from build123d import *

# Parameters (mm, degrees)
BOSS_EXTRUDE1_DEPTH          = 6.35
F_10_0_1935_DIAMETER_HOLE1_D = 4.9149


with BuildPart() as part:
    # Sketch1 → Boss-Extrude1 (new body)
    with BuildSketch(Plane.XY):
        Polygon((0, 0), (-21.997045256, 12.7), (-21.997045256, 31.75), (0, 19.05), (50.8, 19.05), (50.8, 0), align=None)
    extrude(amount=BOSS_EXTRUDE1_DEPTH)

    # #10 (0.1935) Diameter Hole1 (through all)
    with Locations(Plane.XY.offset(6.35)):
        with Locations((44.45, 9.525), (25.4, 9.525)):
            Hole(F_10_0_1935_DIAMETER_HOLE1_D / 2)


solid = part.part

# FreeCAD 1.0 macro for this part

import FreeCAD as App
import Part
import Sketcher
from FreeCAD import Vector
Q = App.Units.Quantity


def add_polygon(sketch, points):
    """Adds a closed chain of lines whose ends are joined by coincident constraints."""
    first, n = sketch.GeometryCount, len(points)
    for a, b in zip(points, points[1:] + points[:1]):
        sketch.addGeometry(Part.LineSegment(App.Vector(*a, 0), App.Vector(*b, 0)), False)
    for i in range(n):
        sketch.addConstraint(Sketcher.Constraint("Coincident", first + i, 2, first + (i + 1) % n, 1))

doc = App.newDocument("Part")
params = doc.addObject("Spreadsheet::Sheet", "Params")
for row, (alias, value) in enumerate([
    ("sketch1_width", "2 in"),
    ("sketch1_length", "1 in"),
    ("sketch1_height", "0.75 in"),
    ("pad1_length", "0.25 in"),
    ("hole_diameter", "0.1935 in"),
], start=1):
    params.set(f"A{row}", alias)
    params.set(f"B{row}", "=" + value)
    params.setAlias(f"B{row}", alias)

body = doc.addObject("PartDesign::Body", "Body")

# Sketch on XY plane
sketch1 = doc.addObject("Sketcher::SketchObject", "Sketch")
body.addObject(sketch1)
sketch1.AttachmentSupport = (doc.XY_Plane, [""])
sketch1.MapMode = "FlatFace"
add_polygon(sketch1, [(-22, 13), (0, 0), (51, 0), (51, 19), (0, 19), (-22, 32)])  # lines 0-5
sketch1.addConstraint(Sketcher.Constraint("Horizontal", 1))
sketch1.addConstraint(Sketcher.Constraint("Vertical", 2))
sketch1.addConstraint(Sketcher.Constraint("Horizontal", 3))
sketch1.addConstraint(Sketcher.Constraint("Vertical", 5))
sketch1.addConstraint(Sketcher.Constraint("Coincident", 0, 2, -1, 1))
sketch1.addConstraint(Sketcher.Constraint("PointOnObject", 3, 2, -2))
sketch1.addConstraint(Sketcher.Constraint("Parallel", 0, 4))
sketch1.addConstraint(Sketcher.Constraint("DistanceX", 1, 1, 1, 2, Q("2 in")))
sketch1.addConstraint(Sketcher.Constraint("Distance", 0, Q("1 in")))
sketch1.addConstraint(Sketcher.Constraint("Angle", 0, Q("-30 deg")))
sketch1.addConstraint(Sketcher.Constraint("DistanceY", 2, 1, 2, 2, Q("0.75 in")))
sketch1.setExpression("Constraints[13]", "Params.sketch1_width")
sketch1.setExpression("Constraints[14]", "Params.sketch1_length")
sketch1.setExpression("Constraints[16]", "Params.sketch1_height")
pad1 = doc.addObject("PartDesign::Pad", "Pad")
body.addObject(pad1)
pad1.Profile = sketch1
pad1.setExpression("Length", "Params.pad1_length")

# Sketch on XY plane
sketch2 = doc.addObject("Sketcher::SketchObject", "Sketch001")
body.addObject(sketch2)
sketch2.AttachmentSupport = (doc.XY_Plane, [""])
sketch2.MapMode = "FlatFace"
sketch2.AttachmentOffset = App.Placement(Vector(0, 0, 0.25 * 25.4), App.Rotation())
sketch2.addGeometry(Part.Circle(Vector(44.5, 9.5, 0), Vector(0, 0, 1), 2.5), False)
sketch2.addGeometry(Part.Circle(Vector(25.4, 9.5, 0), Vector(0, 0, 1), 2.5), False)
sketch2.addConstraint(Sketcher.Constraint("Equal", 0, 1))
sketch2.addConstraint(Sketcher.Constraint("Horizontal", 0, 3, 1, 3))
sketch2.addConstraint(Sketcher.Constraint("DistanceX", -1, 1, 1, 3, Q("1 in")))
sketch2.addConstraint(Sketcher.Constraint("Diameter", 0, Q("0.1935 in")))
sketch2.addConstraint(Sketcher.Constraint("DistanceX", -1, 1, 0, 3, Q("1.75 in")))
sketch2.addConstraint(Sketcher.Constraint("DistanceY", -1, 1, 0, 3, Q("0.375 in")))
doc.recompute()
hole = doc.addObject("PartDesign::Hole", "Hole")
body.addObject(hole)
hole.Profile = sketch2
hole.ThreadType = "None"
hole.setExpression("Diameter", "Params.hole_diameter")
hole.DepthType = "ThroughAll"

doc.recompute()
